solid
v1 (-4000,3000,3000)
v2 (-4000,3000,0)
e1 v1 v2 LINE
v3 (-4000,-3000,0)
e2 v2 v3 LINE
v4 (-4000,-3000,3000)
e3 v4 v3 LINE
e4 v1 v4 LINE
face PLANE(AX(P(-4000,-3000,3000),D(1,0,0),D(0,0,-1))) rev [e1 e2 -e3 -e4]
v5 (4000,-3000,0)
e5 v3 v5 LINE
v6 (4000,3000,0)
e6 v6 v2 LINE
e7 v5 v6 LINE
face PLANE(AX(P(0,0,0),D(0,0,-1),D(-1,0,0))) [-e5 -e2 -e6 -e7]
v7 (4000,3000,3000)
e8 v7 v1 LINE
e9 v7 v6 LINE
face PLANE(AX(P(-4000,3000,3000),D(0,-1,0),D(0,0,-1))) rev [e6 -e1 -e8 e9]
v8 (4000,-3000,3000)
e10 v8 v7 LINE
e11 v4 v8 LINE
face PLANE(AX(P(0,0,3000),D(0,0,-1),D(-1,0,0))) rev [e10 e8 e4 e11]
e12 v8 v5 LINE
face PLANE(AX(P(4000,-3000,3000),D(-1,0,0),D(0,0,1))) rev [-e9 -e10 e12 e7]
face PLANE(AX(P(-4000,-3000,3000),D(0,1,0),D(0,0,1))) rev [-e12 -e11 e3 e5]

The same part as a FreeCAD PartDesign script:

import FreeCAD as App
import Part
import Sketcher
Q = App.Units.Quantity


def add_polygon(sketch, points):
    """Adds a closed chain of lines whose ends are joined by coincident constraints."""
    first, n = sketch.GeometryCount, len(points)
    for a, b in zip(points, points[1:] + points[:1]):
        sketch.addGeometry(Part.LineSegment(App.Vector(*a, 0), App.Vector(*b, 0)), False)
    for i in range(n):
        sketch.addConstraint(Sketcher.Constraint("Coincident", first + i, 2, first + (i + 1) % n, 1))

doc = App.newDocument("Part")
body = doc.addObject("PartDesign::Body", "Body")

# Sketch on XY plane
sketch1 = doc.addObject("Sketcher::SketchObject", "Sketch")
body.addObject(sketch1)
sketch1.AttachmentSupport = (doc.XY_Plane, [""])
sketch1.MapMode = "FlatFace"
add_polygon(sketch1, [(-4000, 3000), (-4000, -3000), (4000, -3000), (4000, 3000)])  # lines 0-3
sketch1.addConstraint([
    Sketcher.Constraint("Vertical", 0),
    Sketcher.Constraint("Horizontal", 1),
    Sketcher.Constraint("Vertical", 2),
    Sketcher.Constraint("Horizontal", 3),
    Sketcher.Constraint("Symmetric", 0, 2, 2, 2, -1, 1),
    Sketcher.Constraint("DistanceX", 1, 1, 1, 2, Q("8000 mm")),
    Sketcher.Constraint("DistanceY", 0, 2, 0, 1, Q("6000 mm")),
])
pad1 = doc.addObject("PartDesign::Pad", "Pad")
body.addObject(pad1)
pad1.Profile = sketch1
pad1.Length = 3000

doc.recompute()
